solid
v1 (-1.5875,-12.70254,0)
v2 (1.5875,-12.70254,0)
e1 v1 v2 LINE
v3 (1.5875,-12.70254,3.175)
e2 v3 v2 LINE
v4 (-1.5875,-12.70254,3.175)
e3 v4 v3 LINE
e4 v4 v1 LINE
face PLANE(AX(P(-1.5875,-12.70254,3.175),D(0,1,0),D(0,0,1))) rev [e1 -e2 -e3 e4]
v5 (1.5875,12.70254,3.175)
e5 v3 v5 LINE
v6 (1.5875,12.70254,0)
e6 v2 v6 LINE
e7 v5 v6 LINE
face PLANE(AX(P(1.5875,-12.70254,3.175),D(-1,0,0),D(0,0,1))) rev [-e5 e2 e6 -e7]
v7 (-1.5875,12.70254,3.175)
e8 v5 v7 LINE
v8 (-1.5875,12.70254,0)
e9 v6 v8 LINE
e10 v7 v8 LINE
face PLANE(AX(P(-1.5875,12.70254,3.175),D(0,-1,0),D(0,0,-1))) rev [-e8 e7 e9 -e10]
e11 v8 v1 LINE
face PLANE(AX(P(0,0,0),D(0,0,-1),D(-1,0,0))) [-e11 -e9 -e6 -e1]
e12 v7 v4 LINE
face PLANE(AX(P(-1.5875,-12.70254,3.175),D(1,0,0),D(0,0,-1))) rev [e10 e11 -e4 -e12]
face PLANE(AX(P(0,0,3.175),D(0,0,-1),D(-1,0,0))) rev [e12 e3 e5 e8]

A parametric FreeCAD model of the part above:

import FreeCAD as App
import Part
import Sketcher
Q = App.Units.Quantity


def add_polygon(sketch, points):
    """Adds a closed chain of lines whose ends are joined by coincident constraints."""
    first, n = sketch.GeometryCount, len(points)
    for a, b in zip(points, points[1:] + points[:1]):
        sketch.addGeometry(Part.LineSegment(App.Vector(*a, 0), App.Vector(*b, 0)), False)
    for i in range(n):
        sketch.addConstraint(Sketcher.Constraint("Coincident", first + i, 2, first + (i + 1) % n, 1))

doc = App.newDocument("Part")
body = doc.addObject("PartDesign::Body", "Body")

sketch1 = body.newObject("Sketcher::SketchObject", "Sketch")
sketch1.AttachmentSupport = (doc.getObject("XY_Plane"), [""])
sketch1.MapMode = "FlatFace"
add_polygon(sketch1, [(-1.5875, 12.70254), (-1.5875, -12.70254), (1.5875, -12.70254), (1.5875, 12.70254)])
sketch1.addConstraint([
    Sketcher.Constraint("Vertical", 0),
    Sketcher.Constraint("Horizontal", 1),
    Sketcher.Constraint("Vertical", 2),
    Sketcher.Constraint("Horizontal", 3),
    Sketcher.Constraint("Symmetric", 0, 2, 2, 2, -1, 1),
    Sketcher.Constraint("DistanceX", 1, 1, 1, 2, Q("0.125 in")),
    Sketcher.Constraint("DistanceY", 0, 2, 0, 1, Q("1.0002 in")),
])
pad1 = body.newObject("PartDesign::Pad", "Pad")
pad1.Profile = sketch1
pad1.Length = Q("0.125 in")

doc.recompute()
